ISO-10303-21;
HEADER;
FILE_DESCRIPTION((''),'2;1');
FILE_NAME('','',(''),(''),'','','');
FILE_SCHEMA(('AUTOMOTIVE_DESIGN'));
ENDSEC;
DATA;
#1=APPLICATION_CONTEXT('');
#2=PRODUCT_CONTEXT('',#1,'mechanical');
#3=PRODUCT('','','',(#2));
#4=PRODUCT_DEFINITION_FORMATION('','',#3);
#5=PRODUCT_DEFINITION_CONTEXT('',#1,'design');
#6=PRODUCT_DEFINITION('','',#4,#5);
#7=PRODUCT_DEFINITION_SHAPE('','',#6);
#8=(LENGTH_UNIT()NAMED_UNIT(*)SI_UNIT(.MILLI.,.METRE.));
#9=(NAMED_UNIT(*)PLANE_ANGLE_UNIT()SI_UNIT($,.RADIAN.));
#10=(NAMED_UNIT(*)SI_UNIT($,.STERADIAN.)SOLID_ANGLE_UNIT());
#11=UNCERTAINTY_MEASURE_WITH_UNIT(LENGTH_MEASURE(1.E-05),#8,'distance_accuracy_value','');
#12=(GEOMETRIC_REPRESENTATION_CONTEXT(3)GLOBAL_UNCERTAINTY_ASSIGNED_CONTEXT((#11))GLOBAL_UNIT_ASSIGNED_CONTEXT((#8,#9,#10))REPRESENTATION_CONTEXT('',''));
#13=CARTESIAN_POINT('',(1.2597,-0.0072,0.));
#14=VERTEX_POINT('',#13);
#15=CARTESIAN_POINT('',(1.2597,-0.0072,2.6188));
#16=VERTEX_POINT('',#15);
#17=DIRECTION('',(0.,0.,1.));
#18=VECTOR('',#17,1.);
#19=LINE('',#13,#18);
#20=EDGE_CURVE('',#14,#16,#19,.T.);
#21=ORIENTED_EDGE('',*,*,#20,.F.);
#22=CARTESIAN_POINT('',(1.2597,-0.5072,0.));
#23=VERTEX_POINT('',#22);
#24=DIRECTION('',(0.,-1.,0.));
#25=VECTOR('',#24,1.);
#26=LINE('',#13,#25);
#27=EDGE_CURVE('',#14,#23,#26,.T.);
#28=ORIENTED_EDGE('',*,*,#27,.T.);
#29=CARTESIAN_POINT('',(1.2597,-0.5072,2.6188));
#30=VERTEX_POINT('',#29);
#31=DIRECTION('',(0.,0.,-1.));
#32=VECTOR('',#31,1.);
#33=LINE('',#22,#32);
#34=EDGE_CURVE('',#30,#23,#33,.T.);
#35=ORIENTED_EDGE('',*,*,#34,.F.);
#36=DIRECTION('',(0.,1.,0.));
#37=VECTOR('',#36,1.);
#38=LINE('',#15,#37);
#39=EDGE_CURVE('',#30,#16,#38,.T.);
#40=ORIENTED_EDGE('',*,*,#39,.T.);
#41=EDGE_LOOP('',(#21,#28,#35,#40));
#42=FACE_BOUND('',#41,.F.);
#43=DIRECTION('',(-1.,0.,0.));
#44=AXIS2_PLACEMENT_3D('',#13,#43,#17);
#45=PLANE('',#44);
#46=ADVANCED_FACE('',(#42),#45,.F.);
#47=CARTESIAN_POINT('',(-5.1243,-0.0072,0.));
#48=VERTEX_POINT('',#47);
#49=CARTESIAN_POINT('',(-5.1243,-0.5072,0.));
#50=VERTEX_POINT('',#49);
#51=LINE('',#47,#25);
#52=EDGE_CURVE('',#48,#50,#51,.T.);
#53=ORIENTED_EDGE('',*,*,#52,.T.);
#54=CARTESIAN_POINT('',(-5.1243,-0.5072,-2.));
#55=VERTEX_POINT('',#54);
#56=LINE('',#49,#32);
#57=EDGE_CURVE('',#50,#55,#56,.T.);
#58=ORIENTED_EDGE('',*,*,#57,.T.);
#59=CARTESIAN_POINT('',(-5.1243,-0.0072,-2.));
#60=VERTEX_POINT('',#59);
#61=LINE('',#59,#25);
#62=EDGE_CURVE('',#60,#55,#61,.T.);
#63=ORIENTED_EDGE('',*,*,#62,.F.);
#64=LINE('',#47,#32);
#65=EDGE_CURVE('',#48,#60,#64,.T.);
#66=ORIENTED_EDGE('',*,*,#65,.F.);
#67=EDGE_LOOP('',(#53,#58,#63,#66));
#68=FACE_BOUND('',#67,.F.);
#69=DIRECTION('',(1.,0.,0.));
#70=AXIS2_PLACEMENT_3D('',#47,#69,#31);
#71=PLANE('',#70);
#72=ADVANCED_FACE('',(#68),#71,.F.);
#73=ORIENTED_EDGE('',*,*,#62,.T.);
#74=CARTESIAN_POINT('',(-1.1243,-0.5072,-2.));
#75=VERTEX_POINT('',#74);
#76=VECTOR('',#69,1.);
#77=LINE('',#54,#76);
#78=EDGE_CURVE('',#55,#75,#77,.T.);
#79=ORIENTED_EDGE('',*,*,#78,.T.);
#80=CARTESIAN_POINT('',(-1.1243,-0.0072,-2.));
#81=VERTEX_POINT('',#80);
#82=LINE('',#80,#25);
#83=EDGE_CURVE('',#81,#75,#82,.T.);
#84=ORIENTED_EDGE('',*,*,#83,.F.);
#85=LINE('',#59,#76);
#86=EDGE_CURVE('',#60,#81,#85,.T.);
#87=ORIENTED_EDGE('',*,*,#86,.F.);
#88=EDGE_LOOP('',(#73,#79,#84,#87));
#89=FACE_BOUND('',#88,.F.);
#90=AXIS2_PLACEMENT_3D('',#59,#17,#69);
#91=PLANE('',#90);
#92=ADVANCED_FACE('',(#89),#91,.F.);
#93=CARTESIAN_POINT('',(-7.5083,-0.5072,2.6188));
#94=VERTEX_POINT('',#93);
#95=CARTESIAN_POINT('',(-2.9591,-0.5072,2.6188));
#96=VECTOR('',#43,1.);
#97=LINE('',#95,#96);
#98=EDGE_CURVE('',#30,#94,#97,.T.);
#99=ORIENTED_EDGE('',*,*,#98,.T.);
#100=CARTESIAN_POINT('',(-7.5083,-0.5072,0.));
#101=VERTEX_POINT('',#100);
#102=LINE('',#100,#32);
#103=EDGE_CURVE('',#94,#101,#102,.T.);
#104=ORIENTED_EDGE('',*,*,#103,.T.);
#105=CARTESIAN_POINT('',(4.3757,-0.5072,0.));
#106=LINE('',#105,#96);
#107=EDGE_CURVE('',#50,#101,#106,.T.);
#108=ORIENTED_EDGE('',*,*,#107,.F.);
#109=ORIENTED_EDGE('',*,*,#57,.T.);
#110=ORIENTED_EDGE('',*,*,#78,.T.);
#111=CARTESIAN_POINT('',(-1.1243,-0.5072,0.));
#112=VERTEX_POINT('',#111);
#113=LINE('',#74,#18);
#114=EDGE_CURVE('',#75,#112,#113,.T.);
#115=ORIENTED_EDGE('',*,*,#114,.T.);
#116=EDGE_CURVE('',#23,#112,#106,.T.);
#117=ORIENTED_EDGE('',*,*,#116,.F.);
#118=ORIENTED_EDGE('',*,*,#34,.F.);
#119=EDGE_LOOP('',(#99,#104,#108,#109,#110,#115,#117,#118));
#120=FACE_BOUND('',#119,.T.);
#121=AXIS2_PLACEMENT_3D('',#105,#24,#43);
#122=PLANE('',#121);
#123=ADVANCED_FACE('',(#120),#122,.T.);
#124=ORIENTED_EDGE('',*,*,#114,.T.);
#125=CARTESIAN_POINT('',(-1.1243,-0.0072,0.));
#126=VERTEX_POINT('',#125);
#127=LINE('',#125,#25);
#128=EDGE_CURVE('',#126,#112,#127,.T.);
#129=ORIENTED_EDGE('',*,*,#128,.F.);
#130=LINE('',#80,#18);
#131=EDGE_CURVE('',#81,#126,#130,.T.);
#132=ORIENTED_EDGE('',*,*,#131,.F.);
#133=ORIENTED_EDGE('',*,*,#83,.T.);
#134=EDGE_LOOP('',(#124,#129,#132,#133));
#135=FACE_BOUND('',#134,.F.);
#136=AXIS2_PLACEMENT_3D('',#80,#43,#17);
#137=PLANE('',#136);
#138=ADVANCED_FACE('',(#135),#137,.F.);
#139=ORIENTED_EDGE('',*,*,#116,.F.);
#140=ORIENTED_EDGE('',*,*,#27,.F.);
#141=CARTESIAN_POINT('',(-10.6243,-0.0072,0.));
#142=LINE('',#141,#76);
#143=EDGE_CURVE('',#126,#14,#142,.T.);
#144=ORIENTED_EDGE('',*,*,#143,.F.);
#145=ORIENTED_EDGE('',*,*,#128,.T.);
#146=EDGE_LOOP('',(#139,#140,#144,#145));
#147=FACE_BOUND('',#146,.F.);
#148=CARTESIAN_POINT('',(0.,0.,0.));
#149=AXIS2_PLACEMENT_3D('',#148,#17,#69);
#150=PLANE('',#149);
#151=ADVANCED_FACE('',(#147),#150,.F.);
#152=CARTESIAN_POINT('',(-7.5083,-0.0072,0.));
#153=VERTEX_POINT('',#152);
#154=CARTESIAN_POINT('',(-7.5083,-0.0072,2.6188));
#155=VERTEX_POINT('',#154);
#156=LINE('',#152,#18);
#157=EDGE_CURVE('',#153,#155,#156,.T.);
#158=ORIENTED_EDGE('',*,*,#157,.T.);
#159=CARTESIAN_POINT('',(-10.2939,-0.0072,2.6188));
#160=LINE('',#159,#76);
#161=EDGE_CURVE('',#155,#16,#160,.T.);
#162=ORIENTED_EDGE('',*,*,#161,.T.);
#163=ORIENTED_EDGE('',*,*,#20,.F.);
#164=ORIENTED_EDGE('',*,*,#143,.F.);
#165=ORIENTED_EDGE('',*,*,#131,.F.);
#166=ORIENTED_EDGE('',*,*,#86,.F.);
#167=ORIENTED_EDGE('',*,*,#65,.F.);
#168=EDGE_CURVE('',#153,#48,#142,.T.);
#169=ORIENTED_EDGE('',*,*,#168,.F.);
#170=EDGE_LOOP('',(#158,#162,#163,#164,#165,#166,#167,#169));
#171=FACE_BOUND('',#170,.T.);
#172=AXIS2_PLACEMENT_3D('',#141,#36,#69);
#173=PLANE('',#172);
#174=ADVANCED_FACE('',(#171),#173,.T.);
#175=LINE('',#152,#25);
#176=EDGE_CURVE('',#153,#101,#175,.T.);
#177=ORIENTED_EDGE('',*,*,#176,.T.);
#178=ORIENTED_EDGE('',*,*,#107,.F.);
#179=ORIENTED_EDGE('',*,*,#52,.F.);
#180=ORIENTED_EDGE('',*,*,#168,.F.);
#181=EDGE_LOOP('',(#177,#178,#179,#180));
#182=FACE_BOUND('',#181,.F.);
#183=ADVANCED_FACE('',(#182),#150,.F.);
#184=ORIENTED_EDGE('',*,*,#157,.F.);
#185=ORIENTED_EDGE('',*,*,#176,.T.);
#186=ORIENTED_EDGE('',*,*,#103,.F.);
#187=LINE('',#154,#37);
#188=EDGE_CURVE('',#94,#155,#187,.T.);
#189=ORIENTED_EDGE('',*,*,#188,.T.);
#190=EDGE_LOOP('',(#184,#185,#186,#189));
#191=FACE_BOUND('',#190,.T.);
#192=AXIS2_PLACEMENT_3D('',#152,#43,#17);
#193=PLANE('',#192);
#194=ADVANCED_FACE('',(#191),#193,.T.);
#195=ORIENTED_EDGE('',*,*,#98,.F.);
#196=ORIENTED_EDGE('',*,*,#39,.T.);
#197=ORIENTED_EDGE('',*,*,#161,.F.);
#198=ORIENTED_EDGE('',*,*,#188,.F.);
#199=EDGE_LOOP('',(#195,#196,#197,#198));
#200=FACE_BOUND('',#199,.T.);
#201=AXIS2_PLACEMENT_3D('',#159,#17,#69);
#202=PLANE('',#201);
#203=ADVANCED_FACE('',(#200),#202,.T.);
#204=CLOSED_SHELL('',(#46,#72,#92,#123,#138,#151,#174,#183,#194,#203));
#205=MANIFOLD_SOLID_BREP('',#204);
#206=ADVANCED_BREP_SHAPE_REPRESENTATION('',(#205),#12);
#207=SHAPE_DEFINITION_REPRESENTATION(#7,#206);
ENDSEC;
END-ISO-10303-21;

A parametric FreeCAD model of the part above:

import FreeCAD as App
import Part
import Sketcher

V = App.Vector

doc = App.newDocument("Part")
body = doc.addObject("PartDesign::Body", "Body")

sketch1 = doc.addObject("Sketcher::SketchObject", "Sketch")
body.addObject(sketch1)
sketch1.AttachmentSupport = (doc.XY_Plane, [""])
sketch1.MapMode = "FlatFace"
sketch1.addGeometry([
    Part.LineSegment(V(4.4, 0, 0), V(-10.6, 0, 0)),
    Part.LineSegment(V(-10.6, 0, 0), V(-10.6, -0.5, 0)),
    Part.LineSegment(V(-10.6, -0.5, 0), V(4.4, -0.5, 0)),
    Part.LineSegment(V(4.4, -0.5, 0), V(4.4, 0, 0)),
], False)
sketch1.addConstraint([
    Sketcher.Constraint("Coincident", 0, 2, 1, 1),
    Sketcher.Constraint("Coincident", 1, 2, 2, 1),
    Sketcher.Constraint("Coincident", 2, 2, 3, 1),
    Sketcher.Constraint("Coincident", 3, 2, 0, 1),
    Sketcher.Constraint("Horizontal", 0),
    Sketcher.Constraint("Vertical", 1),
    Sketcher.Constraint("Horizontal", 2),
    Sketcher.Constraint("Vertical", 3),
    Sketcher.Constraint("DistanceX", 0, 2, 0, 1, 15.0),
    Sketcher.Constraint("DistanceY", 1, 2, 1, 1, 0.5),
    Sketcher.Constraint("DistanceX", 0, 2, -1, 1, 10.6243),
    Sketcher.Constraint("DistanceY", 0, 2, -1, 1, 0.0072),
])
pad1 = doc.addObject("PartDesign::Pad", "Pad")
body.addObject(pad1)
pad1.Profile = sketch1
pad1.Length = 10

sketch2 = doc.addObject("Sketcher::SketchObject", "Sketch001")
body.addObject(sketch2)
sketch2.AttachmentSupport = (doc.XZ_Plane, [""])
sketch2.MapMode = "FlatFace"
sketch2.AttachmentOffset = App.Placement(V(0, 0, 0.0072), App.Rotation())
sketch2.addGeometry([
    Part.LineSegment(V(-1.1, -2, 0), V(-5.1, -2, 0)),
    Part.LineSegment(V(-5.1, -2, 0), V(-5.1, 0, 0)),
    Part.LineSegment(V(-5.1, 0, 0), V(-1.1, 0, 0)),
    Part.LineSegment(V(-1.1, 0, 0), V(-1.1, -2, 0)),
], False)
sketch2.addConstraint([
    Sketcher.Constraint("Coincident", 0, 2, 1, 1),
    Sketcher.Constraint("Coincident", 1, 2, 2, 1),
    Sketcher.Constraint("Coincident", 2, 2, 3, 1),
    Sketcher.Constraint("Coincident", 3, 2, 0, 1),
    Sketcher.Constraint("Horizontal", 0),
    Sketcher.Constraint("Vertical", 1),
    Sketcher.Constraint("Horizontal", 2),
    Sketcher.Constraint("Vertical", 3),
    Sketcher.Constraint("PointOnObject", 1, 2, -1),
    Sketcher.Constraint("DistanceX", 0, 2, 0, 1, 4.0),
    Sketcher.Constraint("DistanceY", 1, 1, 1, 2, 2.0),
    Sketcher.Constraint("DistanceX", 0, 2, -1, 1, 5.1243),
])
pad2 = doc.addObject("PartDesign::Pad", "Pad001")
body.addObject(pad2)
pad2.Profile = sketch2
pad2.Length = 0.5

sketch3 = doc.addObject("Sketcher::SketchObject", "Sketch002")
body.addObject(sketch3)
sketch3.AttachmentSupport = (doc.XZ_Plane, [""])
sketch3.MapMode = "FlatFace"
sketch3.AttachmentOffset = App.Placement(V(0, 0, 0.0072), App.Rotation())
sketch3.addGeometry([
    Part.LineSegment(V(-7.5, 0, 0), V(-10.6, 0, 0)),
    Part.LineSegment(V(-10.6, 0, 0), V(-10.6, 10, 0)),
    Part.LineSegment(V(-10.6, 10, 0), V(-7.5, 10, 0)),
    Part.LineSegment(V(-7.5, 10, 0), V(-7.5, 0, 0)),
    Part.LineSegment(V(1.3, 0, 0), V(1.3, 10, 0)),
    Part.LineSegment(V(1.3, 10, 0), V(4.4, 10, 0)),
    Part.LineSegment(V(4.4, 10, 0), V(4.4, 0, 0)),
    Part.LineSegment(V(4.4, 0, 0), V(1.3, 0, 0)),
], False)
sketch3.addConstraint([
    Sketcher.Constraint("Coincident", 0, 2, 1, 1),
    Sketcher.Constraint("Coincident", 1, 2, 2, 1),
    Sketcher.Constraint("Coincident", 2, 2, 3, 1),
    Sketcher.Constraint("Coincident", 3, 2, 0, 1),
    Sketcher.Constraint("Coincident", 4, 2, 5, 1),
    Sketcher.Constraint("Coincident", 5, 2, 6, 1),
    Sketcher.Constraint("Coincident", 6, 2, 7, 1),
    Sketcher.Constraint("Coincident", 7, 2, 4, 1),
    Sketcher.Constraint("Horizontal", 0),
    Sketcher.Constraint("Vertical", 1),
    Sketcher.Constraint("Horizontal", 2),
    Sketcher.Constraint("Vertical", 3),
    Sketcher.Constraint("Vertical", 4),
    Sketcher.Constraint("Horizontal", 5),
    Sketcher.Constraint("Vertical", 6),
    Sketcher.Constraint("Horizontal", 7),
    Sketcher.Constraint("PointOnObject", 0, 2, -1),
    Sketcher.Constraint("PointOnObject", 6, 2, -1),
    Sketcher.Constraint("Horizontal", 2, 2, 4, 2),
    Sketcher.Constraint("Equal", 2, 5),
    Sketcher.Constraint("DistanceY", 1, 1, 1, 2, 10.0),
    Sketcher.Constraint("DistanceX", 1, 2, 5, 2, 15.0),
    Sketcher.Constraint("DistanceX", 0, 2, 0, 1, 3.116),
    Sketcher.Constraint("DistanceX", 0, 2, -1, 1, 10.6243),
])
pocket1 = doc.addObject("PartDesign::Pocket", "Pocket")
body.addObject(pocket1)
pocket1.Profile = sketch3
pocket1.Length = 1
pocket1.Reversed = True

sketch4 = doc.addObject("Sketcher::SketchObject", "Sketch003")
body.addObject(sketch4)
sketch4.AttachmentSupport = (doc.XZ_Plane, [""])
sketch4.MapMode = "FlatFace"
sketch4.AttachmentOffset = App.Placement(V(0, 0, 0.0072), App.Rotation())
sketch4.addGeometry([
    Part.LineSegment(V(-10, 13, 0), V(4, 13, 0)),
    Part.LineSegment(V(4, 13, 0), V(4, 3, 0)),
    Part.LineSegment(V(4, 3, 0), V(-10, 3, 0)),
    Part.LineSegment(V(-10, 3, 0), V(-10, 13, 0)),
], False)
sketch4.addConstraint([
    Sketcher.Constraint("Coincident", 0, 2, 1, 1),
    Sketcher.Constraint("Coincident", 1, 2, 2, 1),
    Sketcher.Constraint("Coincident", 2, 2, 3, 1),
    Sketcher.Constraint("Coincident", 3, 2, 0, 1),
    Sketcher.Constraint("Horizontal", 0),
    Sketcher.Constraint("Vertical", 1),
    Sketcher.Constraint("Horizontal", 2),
    Sketcher.Constraint("Vertical", 3),
    Sketcher.Constraint("DistanceX", 0, 1, 0, 2, 13.9803),
    Sketcher.Constraint("DistanceY", 1, 2, 1, 1, 10.2737),
    Sketcher.Constraint("DistanceX", 2, 2, -1, 1, 10.294),
    Sketcher.Constraint("DistanceY", -1, 1, 0, 2, 12.8925),
])
pocket2 = doc.addObject("PartDesign::Pocket", "Pocket001")
body.addObject(pocket2)
pocket2.Profile = sketch4
pocket2.Length = 1
pocket2.Reversed = True

doc.recompute()
